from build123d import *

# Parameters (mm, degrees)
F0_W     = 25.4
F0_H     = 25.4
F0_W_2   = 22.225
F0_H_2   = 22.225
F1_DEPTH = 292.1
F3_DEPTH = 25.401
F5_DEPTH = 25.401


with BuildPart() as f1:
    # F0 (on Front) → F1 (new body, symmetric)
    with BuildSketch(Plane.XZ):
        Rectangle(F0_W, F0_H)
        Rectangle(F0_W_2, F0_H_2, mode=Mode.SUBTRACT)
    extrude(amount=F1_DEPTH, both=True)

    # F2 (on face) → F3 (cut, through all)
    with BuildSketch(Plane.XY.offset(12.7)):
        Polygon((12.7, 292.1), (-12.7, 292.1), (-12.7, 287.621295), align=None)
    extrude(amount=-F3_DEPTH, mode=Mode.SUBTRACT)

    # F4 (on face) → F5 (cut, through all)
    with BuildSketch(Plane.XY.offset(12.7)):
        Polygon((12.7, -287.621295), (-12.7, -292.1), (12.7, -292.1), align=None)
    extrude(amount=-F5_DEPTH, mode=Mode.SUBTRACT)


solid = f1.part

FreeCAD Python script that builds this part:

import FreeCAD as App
import Part
import Sketcher
Q = App.Units.Quantity


def add_polygon(sketch, points):
    """Adds a closed chain of lines whose ends are joined by coincident constraints."""
    first, n = sketch.GeometryCount, len(points)
    for a, b in zip(points, points[1:] + points[:1]):
        sketch.addGeometry(Part.LineSegment(App.Vector(*a, 0), App.Vector(*b, 0)), False)
    for i in range(n):
        sketch.addConstraint(Sketcher.Constraint("Coincident", first + i, 2, first + (i + 1) % n, 1))

doc = App.newDocument("Part")
params = doc.addObject("Spreadsheet::Sheet", "Params")
for row, (alias, value) in enumerate([
    ("sketch1_width", "1 in"),
    ("sketch1_width2", "0.875 in"),
    ("pad1_length", "23 in"),
    ("sketch2_width", "1 in"),
    ("sketch3_width", "1 in"),
], start=1):
    params.set(f"A{row}", alias)
    params.set(f"B{row}", "=" + value)
    params.setAlias(f"B{row}", alias)

body = doc.addObject("PartDesign::Body", "Body")

# Sketch on XZ plane
sketch1 = body.newObject("Sketcher::SketchObject", "Sketch")
sketch1.AttachmentSupport = (doc.getObject("XZ_Plane"), [""])
sketch1.MapMode = "FlatFace"
add_polygon(sketch1, [(-13, 13), (-13, -13), (13, -13), (13, 13)])  # lines 0-3
add_polygon(sketch1, [(11, -11), (-11, -11), (-11, 11), (11, 11)])  # lines 4-7
sketch1.addConstraint([
    Sketcher.Constraint("Vertical", 0),
    Sketcher.Constraint("Horizontal", 1),
    Sketcher.Constraint("Vertical", 2),
    Sketcher.Constraint("Horizontal", 3),
    Sketcher.Constraint("Horizontal", 4),
    Sketcher.Constraint("Vertical", 5),
    Sketcher.Constraint("Horizontal", 6),
    Sketcher.Constraint("Vertical", 7),
    Sketcher.Constraint("Symmetric", 0, 2, 2, 2, -1, 1),
    Sketcher.Constraint("Symmetric", 4, 2, 6, 2, -1, 1),
    Sketcher.Constraint("Equal", 3, 0),
    Sketcher.Constraint("Equal", 6, 5),
    Sketcher.Constraint("DistanceX", 1, 1, 1, 2, Q("1 in")),
    Sketcher.Constraint("DistanceX", 4, 2, 4, 1, Q("0.875 in")),
])
sketch1.setExpression("Constraints[20]", "Params.sketch1_width")
sketch1.setExpression("Constraints[21]", "Params.sketch1_width2")
pad1 = body.newObject("PartDesign::Pad", "Pad")
pad1.Profile = sketch1
pad1.setExpression("Length", "Params.pad1_length")
pad1.Midplane = True

# Sketch on XY plane
sketch2 = body.newObject("Sketcher::SketchObject", "Sketch001")
sketch2.AttachmentSupport = (doc.getObject("XY_Plane"), [""])
sketch2.MapMode = "FlatFace"
sketch2.AttachmentOffset = App.Placement(App.Vector(0, 0, 0.5 * 25.4), App.Rotation())
add_polygon(sketch2, [(12.7, 292.1), (-12.7, 292.1), (-12.7, 287.6)])  # lines 0-2
sketch2.addConstraint([
    Sketcher.Constraint("Horizontal", 0),
    Sketcher.Constraint("Vertical", 1),
    Sketcher.Constraint("DistanceX", 0, 2, 0, 1, Q("1 in")),
    Sketcher.Constraint("Angle", 2, Q("9.999999 deg")),
    Sketcher.Constraint("DistanceX", 0, 2, -1, 1, Q("0.5 in")),
    Sketcher.Constraint("DistanceY", -1, 1, 0, 2, Q("11.5 in")),
])
sketch2.setExpression("Constraints[5]", "Params.sketch2_width")
pocket1 = body.newObject("PartDesign::Pocket", "Pocket")
pocket1.Profile = sketch2
pocket1.Type = "ThroughAll"

# Sketch on XY plane
sketch3 = body.newObject("Sketcher::SketchObject", "Sketch002")
sketch3.AttachmentSupport = (doc.getObject("XY_Plane"), [""])
sketch3.MapMode = "FlatFace"
sketch3.AttachmentOffset = App.Placement(App.Vector(0, 0, 0.5 * 25.4), App.Rotation())
add_polygon(sketch3, [(12.7, -287.6), (-12.7, -292.1), (12.7, -292.1)])  # lines 0-2
sketch3.addConstraint([
    Sketcher.Constraint("Horizontal", 1),
    Sketcher.Constraint("Vertical", 2),
    Sketcher.Constraint("DistanceX", 1, 1, 1, 2, Q("1 in")),
    Sketcher.Constraint("Angle", 0, Q("-170.000001 deg")),
    Sketcher.Constraint("DistanceX", 0, 2, -1, 1, Q("0.5 in")),
    Sketcher.Constraint("DistanceY", 0, 2, -1, 1, Q("11.5 in")),
])
sketch3.setExpression("Constraints[5]", "Params.sketch3_width")
pocket2 = body.newObject("PartDesign::Pocket", "Pocket001")
pocket2.Profile = sketch3
pocket2.Type = "ThroughAll"

doc.recompute()
